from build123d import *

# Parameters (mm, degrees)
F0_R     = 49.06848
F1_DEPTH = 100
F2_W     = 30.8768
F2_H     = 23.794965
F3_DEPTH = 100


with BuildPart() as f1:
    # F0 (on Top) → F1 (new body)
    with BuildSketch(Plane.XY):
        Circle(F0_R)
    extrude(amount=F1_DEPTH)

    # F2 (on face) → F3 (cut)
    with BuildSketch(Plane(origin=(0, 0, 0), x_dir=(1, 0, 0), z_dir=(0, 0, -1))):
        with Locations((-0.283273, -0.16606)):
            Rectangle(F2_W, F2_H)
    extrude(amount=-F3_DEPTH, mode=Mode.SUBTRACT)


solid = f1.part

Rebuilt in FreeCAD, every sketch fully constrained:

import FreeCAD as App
import Part
import Sketcher
from FreeCAD import Vector
Q = App.Units.Quantity


def add_polygon(sketch, points):
    """Adds a closed chain of lines whose ends are joined by coincident constraints."""
    first, n = sketch.GeometryCount, len(points)
    for a, b in zip(points, points[1:] + points[:1]):
        sketch.addGeometry(Part.LineSegment(App.Vector(*a, 0), App.Vector(*b, 0)), False)
    for i in range(n):
        sketch.addConstraint(Sketcher.Constraint("Coincident", first + i, 2, first + (i + 1) % n, 1))

doc = App.newDocument("Part")
body = doc.addObject("PartDesign::Body", "Body")

sketch1 = body.newObject("Sketcher::SketchObject", "Sketch")
sketch1.AttachmentSupport = (doc.getObject("XY_Plane"), [""])
sketch1.MapMode = "FlatFace"
sketch1.addGeometry(Part.Circle(Vector(0, 0, 0), Vector(0, 0, 1), 49.06848), False)
sketch1.addConstraint([
    Sketcher.Constraint("Coincident", 0, 3, -1, 1),
    Sketcher.Constraint("Diameter", 0, Q("98.13696 mm")),
])
pad1 = body.newObject("PartDesign::Pad", "Pad")
pad1.Profile = sketch1
pad1.Length = 100

sketch2 = body.newObject("Sketcher::SketchObject", "Sketch001")
sketch2.AttachmentSupport = (doc.getObject("XY_Plane"), [""])
sketch2.MapMode = "FlatFace"
add_polygon(sketch2, [(-15.721673, -11.731423), (-15.721673, 12.063543), (15.155127, 12.063543), (15.155127, -11.731423)])
sketch2.addConstraint([
    Sketcher.Constraint("Vertical", 0),
    Sketcher.Constraint("Horizontal", 1),
    Sketcher.Constraint("Vertical", 2),
    Sketcher.Constraint("Horizontal", 3),
    Sketcher.Constraint("DistanceX", 1, 1, 1, 2, Q("30.8768 mm")),
    Sketcher.Constraint("DistanceY", 0, 1, 0, 2, Q("23.794965 mm")),
    Sketcher.Constraint("DistanceX", 0, 2, -1, 1, Q("15.721673 mm")),
    Sketcher.Constraint("DistanceY", -1, 1, 0, 2, Q("12.063543 mm")),
])
pocket1 = body.newObject("PartDesign::Pocket", "Pocket")
pocket1.Profile = sketch2
pocket1.Length = 100
pocket1.Reversed = True

doc.recompute()
